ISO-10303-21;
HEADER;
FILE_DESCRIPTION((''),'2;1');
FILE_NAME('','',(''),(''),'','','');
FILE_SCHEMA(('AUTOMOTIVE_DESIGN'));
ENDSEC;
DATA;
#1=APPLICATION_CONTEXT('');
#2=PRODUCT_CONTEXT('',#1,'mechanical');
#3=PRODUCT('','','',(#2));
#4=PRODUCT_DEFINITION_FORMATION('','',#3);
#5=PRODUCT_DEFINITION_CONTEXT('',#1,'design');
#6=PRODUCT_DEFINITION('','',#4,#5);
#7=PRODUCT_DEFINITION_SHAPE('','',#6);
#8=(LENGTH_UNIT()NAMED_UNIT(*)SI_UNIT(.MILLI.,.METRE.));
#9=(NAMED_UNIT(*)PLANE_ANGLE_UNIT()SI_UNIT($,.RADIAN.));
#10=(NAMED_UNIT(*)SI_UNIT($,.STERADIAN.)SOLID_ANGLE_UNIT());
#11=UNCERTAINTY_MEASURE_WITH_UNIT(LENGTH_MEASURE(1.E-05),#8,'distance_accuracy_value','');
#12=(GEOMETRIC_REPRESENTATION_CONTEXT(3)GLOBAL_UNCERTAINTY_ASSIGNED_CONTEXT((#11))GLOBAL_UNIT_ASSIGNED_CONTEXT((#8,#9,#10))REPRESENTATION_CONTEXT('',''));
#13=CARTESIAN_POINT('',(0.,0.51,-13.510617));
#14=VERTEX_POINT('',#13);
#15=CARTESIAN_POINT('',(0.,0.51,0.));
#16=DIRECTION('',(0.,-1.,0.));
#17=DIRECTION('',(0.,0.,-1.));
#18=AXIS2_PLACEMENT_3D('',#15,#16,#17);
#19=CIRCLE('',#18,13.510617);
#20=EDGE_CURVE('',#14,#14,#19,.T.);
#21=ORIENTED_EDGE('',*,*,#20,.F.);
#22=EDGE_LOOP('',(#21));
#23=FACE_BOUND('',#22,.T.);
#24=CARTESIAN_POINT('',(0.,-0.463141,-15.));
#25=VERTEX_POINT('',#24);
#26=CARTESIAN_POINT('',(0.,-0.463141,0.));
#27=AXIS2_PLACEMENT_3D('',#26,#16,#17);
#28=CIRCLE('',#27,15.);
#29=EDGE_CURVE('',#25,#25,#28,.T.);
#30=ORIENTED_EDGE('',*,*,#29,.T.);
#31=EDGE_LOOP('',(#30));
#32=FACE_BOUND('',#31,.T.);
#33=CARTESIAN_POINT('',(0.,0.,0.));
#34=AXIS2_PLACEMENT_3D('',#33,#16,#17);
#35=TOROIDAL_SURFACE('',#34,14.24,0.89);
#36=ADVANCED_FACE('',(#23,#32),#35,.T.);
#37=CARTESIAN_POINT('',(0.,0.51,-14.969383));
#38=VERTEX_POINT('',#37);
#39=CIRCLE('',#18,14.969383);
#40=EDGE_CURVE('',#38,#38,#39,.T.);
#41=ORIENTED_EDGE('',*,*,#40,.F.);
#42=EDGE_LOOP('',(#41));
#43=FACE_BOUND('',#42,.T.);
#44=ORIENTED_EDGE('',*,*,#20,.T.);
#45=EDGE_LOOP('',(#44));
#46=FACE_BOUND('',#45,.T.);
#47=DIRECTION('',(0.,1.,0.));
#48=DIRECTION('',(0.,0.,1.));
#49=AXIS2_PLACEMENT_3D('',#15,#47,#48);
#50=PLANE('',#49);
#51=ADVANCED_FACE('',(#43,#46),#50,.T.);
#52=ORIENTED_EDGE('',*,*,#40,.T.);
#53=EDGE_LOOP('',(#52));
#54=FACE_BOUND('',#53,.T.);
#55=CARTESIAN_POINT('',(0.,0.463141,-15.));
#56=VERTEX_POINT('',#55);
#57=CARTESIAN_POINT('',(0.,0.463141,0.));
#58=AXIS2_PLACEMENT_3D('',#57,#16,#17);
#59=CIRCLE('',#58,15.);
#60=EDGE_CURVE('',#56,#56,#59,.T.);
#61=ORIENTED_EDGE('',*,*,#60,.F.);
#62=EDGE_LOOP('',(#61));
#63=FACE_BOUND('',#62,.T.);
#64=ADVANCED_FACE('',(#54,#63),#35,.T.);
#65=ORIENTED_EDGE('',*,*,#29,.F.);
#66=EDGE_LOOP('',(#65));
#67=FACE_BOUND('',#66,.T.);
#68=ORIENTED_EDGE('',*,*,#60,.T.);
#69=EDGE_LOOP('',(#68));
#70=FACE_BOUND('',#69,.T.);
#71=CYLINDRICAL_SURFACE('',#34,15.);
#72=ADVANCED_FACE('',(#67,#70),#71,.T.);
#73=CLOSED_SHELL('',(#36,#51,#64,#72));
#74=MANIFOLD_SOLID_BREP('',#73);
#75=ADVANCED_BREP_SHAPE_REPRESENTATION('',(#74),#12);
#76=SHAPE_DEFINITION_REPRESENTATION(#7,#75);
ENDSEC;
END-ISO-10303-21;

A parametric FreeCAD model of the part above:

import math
import FreeCAD as App
import Part
import Sketcher
from FreeCAD import Vector

doc = App.newDocument("Part")
body = doc.addObject("PartDesign::Body", "Body")

# Sketch on XY plane
sketch1 = body.newObject("Sketcher::SketchObject", "Sketch")
sketch1.AttachmentSupport = (doc.getObject("XY_Plane"), [""])
sketch1.MapMode = "FlatFace"
sketch1.addGeometry(Part.LineSegment(Vector(-13.51, 0.51, 0), Vector(-14.97, 0.51, 0)), False)
sketch1.addGeometry(Part.ArcOfCircle(Part.Circle(Vector(-14.24, 0, 0), Vector(0, 0, 1), 0.89), math.radians(145.04), math.radians(148.64)), False)
sketch1.addGeometry(Part.LineSegment(Vector(-15, 0.46, 0), Vector(-15, -0.46, 0)), False)
sketch1.addGeometry(Part.ArcOfCircle(Part.Circle(Vector(-14.24, 0, 0), Vector(0, 0, 1), 0.89), math.radians(-149), math.radians(0)), False)
sketch1.addGeometry(Part.ArcOfCircle(Part.Circle(Vector(-14.24, 0, 0), Vector(0, 0, 1), 0.89), math.radians(0), math.radians(35)), False)
sketch1.addConstraint(Sketcher.Constraint("Coincident", 0, 2, 1, 1))
sketch1.addConstraint(Sketcher.Constraint("Coincident", 1, 2, 2, 1))
sketch1.addConstraint(Sketcher.Constraint("Coincident", 2, 2, 3, 1))
sketch1.addConstraint(Sketcher.Constraint("Tangent", 3, 2, 4, 1))
sketch1.addConstraint(Sketcher.Constraint("Coincident", 4, 2, 0, 1))
sketch1.addConstraint(Sketcher.Constraint("Horizontal", 0))
sketch1.addConstraint(Sketcher.Constraint("Vertical", 2))
sketch1.addConstraint(Sketcher.Constraint("Coincident", 3, 3, 1, 3))
sketch1.addConstraint(Sketcher.Constraint("Equal", 1, 3))
sketch1.addConstraint(Sketcher.Constraint("Equal", 3, 4))
sketch1.addConstraint(Sketcher.Constraint("PointOnObject", 1, 3, -1))
sketch1.addConstraint(Sketcher.Constraint("PointOnObject", 3, 2, -1))
sketch1.addConstraint(Sketcher.Constraint("Radius", 1, 0.89))
sketch1.addConstraint(Sketcher.Constraint("DistanceX", 1, 2, -1, 1, 15.0))
sketch1.addConstraint(Sketcher.Constraint("DistanceX", 1, 3, -1, 1, 14.24))
sketch1.addConstraint(Sketcher.Constraint("DistanceY", -1, 1, 0, 2, 0.51))
revolution = body.newObject("PartDesign::Revolution", "Revolution")
revolution.Profile = sketch1
revolution.ReferenceAxis = (sketch1, ["V_Axis"])
revolution.Angle = 360

doc.recompute()
